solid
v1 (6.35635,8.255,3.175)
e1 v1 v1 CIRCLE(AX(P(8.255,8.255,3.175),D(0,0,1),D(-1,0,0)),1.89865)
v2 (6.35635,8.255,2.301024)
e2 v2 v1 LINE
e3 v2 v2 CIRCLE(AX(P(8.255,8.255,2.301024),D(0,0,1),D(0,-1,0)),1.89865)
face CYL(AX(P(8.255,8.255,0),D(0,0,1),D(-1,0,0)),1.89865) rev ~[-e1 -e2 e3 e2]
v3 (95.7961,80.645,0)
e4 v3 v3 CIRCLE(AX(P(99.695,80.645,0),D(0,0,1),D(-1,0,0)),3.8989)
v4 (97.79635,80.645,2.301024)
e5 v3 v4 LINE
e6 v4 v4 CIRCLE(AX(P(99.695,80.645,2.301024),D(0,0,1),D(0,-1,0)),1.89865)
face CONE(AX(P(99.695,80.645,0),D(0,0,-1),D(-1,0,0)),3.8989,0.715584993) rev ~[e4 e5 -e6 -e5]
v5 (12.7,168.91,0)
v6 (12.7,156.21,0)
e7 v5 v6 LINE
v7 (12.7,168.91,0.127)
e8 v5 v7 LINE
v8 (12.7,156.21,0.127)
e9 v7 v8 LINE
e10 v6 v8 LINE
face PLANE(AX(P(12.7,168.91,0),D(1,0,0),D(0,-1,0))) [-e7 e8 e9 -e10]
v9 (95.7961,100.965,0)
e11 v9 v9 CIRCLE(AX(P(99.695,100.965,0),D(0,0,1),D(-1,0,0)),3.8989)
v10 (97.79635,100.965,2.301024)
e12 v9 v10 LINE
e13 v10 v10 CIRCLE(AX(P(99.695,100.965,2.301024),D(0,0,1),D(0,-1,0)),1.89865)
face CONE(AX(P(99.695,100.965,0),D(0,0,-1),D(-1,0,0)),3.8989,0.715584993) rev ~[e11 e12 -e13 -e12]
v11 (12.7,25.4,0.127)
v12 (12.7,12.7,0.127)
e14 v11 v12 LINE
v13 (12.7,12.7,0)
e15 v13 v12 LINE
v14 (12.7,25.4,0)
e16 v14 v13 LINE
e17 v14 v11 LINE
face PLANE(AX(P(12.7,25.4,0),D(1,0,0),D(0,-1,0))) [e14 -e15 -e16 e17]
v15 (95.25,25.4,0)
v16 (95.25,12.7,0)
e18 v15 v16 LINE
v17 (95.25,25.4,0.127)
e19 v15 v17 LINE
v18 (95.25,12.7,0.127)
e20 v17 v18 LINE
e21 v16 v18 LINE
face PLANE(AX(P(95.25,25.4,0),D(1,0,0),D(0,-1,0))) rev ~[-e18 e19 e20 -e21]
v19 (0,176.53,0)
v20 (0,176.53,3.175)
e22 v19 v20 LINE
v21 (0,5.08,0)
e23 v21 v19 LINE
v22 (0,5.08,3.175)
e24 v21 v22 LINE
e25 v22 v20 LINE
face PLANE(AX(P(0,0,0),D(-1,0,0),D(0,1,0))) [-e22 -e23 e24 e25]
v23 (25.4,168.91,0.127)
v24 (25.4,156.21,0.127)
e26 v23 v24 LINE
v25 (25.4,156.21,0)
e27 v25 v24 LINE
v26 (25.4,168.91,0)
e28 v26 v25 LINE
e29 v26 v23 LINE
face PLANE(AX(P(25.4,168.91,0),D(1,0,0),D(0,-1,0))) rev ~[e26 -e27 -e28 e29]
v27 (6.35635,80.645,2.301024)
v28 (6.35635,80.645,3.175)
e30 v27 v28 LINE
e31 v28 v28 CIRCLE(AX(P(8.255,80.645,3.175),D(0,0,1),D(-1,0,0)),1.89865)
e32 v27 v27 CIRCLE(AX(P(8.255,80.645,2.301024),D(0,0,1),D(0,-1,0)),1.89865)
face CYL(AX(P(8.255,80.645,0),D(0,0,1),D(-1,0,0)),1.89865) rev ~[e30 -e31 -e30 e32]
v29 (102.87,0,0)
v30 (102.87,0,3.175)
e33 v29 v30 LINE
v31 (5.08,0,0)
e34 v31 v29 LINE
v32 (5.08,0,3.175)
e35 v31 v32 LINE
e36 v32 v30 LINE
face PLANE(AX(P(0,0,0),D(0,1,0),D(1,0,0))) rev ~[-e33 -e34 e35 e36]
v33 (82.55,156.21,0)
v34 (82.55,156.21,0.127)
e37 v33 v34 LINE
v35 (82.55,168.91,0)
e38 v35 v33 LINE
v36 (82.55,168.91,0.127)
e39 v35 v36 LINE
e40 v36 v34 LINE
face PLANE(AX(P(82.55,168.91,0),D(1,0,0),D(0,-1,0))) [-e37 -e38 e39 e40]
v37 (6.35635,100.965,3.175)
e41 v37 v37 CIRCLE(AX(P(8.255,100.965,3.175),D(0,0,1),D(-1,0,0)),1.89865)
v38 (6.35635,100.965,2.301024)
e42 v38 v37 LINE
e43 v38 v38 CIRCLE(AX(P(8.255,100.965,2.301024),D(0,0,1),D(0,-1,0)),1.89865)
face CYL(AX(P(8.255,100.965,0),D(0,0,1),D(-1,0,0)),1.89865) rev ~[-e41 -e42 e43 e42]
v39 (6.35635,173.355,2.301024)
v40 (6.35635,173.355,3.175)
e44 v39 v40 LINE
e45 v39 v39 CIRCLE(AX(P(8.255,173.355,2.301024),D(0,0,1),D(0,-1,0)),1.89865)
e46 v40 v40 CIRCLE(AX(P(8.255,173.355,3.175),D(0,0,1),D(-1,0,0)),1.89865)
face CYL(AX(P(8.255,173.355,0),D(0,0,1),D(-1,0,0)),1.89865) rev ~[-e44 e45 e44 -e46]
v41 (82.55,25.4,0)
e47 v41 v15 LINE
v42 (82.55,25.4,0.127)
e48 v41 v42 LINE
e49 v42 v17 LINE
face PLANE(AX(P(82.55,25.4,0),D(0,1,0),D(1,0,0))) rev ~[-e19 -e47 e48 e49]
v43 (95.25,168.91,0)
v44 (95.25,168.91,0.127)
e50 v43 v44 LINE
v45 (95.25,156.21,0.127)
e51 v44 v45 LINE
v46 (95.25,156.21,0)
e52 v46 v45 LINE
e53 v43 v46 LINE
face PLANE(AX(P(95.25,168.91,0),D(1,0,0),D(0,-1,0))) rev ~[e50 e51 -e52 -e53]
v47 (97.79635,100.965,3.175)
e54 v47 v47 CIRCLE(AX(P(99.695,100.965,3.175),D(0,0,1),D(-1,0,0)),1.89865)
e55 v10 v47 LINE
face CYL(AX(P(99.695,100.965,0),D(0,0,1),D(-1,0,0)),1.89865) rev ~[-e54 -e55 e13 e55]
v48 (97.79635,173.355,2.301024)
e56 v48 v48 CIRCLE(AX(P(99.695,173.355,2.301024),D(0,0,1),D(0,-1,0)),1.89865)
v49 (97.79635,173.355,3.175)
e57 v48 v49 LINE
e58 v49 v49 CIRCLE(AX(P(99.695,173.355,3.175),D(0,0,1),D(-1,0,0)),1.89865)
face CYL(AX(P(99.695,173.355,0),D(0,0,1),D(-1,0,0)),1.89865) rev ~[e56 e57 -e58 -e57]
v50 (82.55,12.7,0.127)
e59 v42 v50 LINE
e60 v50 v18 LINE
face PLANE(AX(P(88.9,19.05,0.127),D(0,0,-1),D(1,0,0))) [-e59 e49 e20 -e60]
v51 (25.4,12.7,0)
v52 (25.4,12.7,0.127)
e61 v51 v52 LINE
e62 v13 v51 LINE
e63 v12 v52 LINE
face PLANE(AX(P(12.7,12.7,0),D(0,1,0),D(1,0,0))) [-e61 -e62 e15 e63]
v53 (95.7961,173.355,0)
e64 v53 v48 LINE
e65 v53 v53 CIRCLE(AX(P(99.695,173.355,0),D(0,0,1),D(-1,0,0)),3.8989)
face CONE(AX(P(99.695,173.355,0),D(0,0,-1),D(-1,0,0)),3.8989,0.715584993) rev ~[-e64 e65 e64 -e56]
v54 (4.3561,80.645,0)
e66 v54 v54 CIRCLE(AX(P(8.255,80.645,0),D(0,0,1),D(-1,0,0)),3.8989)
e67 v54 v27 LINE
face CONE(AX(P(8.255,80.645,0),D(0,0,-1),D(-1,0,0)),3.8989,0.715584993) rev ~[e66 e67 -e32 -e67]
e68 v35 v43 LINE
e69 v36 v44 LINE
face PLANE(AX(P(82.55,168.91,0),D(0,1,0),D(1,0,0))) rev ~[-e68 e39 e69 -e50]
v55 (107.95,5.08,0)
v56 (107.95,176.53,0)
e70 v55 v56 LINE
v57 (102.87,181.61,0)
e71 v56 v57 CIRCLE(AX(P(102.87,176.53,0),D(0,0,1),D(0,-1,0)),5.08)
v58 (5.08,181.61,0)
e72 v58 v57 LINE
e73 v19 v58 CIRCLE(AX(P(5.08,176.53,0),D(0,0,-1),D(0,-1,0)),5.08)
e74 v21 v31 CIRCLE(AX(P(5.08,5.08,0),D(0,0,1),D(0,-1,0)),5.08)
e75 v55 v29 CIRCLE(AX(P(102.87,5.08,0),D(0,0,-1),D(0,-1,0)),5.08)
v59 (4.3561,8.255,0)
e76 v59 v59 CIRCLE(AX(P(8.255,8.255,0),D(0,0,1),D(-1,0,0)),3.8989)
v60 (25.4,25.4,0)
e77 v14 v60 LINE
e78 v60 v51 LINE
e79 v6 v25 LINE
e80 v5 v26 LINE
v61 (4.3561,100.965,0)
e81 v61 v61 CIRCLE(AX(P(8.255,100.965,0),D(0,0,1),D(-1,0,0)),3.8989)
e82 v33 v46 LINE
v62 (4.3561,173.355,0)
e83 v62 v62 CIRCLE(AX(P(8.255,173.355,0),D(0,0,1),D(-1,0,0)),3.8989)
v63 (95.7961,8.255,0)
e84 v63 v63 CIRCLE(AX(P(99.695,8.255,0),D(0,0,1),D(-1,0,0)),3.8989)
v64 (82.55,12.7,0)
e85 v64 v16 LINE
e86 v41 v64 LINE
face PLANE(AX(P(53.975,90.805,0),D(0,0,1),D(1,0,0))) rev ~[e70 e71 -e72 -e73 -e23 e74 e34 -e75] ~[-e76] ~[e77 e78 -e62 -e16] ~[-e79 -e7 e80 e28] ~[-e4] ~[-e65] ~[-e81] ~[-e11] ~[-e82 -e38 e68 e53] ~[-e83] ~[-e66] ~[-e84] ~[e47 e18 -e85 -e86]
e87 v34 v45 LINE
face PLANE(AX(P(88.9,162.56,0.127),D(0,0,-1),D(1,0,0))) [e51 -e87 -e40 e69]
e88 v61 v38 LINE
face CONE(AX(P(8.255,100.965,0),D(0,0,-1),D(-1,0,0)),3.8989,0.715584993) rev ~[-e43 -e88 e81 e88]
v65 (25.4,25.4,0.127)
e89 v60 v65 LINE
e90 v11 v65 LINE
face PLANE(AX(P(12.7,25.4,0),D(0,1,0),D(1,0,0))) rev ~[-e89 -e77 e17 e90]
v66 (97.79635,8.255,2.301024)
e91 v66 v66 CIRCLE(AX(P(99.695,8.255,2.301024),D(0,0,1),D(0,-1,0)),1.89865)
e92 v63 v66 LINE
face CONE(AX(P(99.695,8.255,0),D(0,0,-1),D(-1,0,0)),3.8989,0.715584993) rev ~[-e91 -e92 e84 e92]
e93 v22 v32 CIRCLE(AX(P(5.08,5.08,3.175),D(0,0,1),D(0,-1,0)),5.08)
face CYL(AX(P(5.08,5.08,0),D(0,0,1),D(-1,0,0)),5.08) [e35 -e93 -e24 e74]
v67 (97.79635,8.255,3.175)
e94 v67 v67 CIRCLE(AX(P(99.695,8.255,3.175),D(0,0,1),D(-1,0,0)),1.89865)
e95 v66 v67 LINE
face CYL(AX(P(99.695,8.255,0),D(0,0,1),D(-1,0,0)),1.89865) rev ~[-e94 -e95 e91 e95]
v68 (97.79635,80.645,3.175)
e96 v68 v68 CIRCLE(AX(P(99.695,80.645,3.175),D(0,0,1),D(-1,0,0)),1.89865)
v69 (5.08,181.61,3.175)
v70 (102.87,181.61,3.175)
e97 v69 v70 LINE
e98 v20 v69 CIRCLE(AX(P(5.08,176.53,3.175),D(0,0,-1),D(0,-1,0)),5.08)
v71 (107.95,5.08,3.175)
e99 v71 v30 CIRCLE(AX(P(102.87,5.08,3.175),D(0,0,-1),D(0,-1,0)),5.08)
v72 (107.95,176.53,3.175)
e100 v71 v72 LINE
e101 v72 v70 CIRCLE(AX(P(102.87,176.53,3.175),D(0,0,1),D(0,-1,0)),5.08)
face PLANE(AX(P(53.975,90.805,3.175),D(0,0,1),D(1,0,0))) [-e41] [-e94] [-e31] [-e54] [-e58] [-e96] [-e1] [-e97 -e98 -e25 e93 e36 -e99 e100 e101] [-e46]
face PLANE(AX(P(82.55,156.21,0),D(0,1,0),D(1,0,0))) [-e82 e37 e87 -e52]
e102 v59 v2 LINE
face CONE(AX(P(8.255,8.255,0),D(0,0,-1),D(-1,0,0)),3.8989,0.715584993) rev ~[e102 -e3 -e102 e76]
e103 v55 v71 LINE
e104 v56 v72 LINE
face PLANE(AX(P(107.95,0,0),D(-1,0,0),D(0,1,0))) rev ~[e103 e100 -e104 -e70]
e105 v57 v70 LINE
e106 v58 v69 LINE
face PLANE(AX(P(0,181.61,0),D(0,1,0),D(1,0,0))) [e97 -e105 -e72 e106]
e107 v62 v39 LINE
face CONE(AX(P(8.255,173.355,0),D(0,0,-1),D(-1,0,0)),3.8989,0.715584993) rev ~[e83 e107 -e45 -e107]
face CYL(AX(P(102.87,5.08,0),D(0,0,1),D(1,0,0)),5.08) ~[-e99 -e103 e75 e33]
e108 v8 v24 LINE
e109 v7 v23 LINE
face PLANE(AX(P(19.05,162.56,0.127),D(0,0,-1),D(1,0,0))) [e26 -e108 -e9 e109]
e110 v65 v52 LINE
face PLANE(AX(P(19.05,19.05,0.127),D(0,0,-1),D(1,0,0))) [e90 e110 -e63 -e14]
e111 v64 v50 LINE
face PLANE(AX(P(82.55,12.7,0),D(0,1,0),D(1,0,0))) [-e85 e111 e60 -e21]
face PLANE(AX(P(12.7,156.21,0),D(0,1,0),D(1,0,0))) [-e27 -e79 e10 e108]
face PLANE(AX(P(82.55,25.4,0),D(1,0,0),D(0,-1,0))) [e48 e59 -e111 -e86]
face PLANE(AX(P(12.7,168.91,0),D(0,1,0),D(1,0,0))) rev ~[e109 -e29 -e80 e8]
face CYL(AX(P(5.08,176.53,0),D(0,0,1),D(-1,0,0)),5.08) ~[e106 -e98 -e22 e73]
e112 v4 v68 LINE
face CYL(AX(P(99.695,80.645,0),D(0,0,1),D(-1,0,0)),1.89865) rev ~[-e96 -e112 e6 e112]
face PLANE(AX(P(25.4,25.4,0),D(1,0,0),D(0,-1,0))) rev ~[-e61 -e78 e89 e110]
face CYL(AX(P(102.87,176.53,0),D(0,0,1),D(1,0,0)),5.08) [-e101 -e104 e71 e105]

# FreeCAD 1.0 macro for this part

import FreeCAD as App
import Part
import Sketcher
Q = App.Units.Quantity


def edges_at(feature, points):
    """Names of the edges that pass closest to the given points."""
    edges = feature.Shape.Edges
    near = lambda p: min(range(len(edges)), key=lambda i: edges[i].distToShape(Part.Vertex(*p))[0])
    return sorted({f"Edge{near(p) + 1}" for p in points})

doc = App.newDocument("Part")
params = doc.addObject("Spreadsheet::Sheet", "Params")
for row, (alias, value) in enumerate([
    ("sketch1_width", "4.25 in"),
    ("sketch1_height", "7.15 in"),
    ("pad1_length", "0.125 in"),
    ("hole_diameter", "0.1495 in"),
    ("hole_csink_diameter", "0.307 in"),
    ("fillet_radius", "0.2 in"),
    ("sketch3_width", "0.5 in"),
    ("pocket1_length", "0.005 in"),
], start=1):
    params.set(f"A{row}", alias)
    params.set(f"B{row}", "=" + value)
    params.setAlias(f"B{row}", alias)

body = doc.addObject("PartDesign::Body", "Body")

sketch1 = doc.addObject("Sketcher::SketchObject", "Sketch")
body.addObject(sketch1)
sketch1.AttachmentSupport = (doc.XY_Plane, [""])
sketch1.MapMode = "FlatFace"
sketch1.addGeometry([
    Part.LineSegment(App.Vector(0, 182, 0), App.Vector(0, 0, 0)),
    Part.LineSegment(App.Vector(0, 0, 0), App.Vector(108, 0, 0)),
    Part.LineSegment(App.Vector(108, 0, 0), App.Vector(108, 182, 0)),
    Part.LineSegment(App.Vector(108, 182, 0), App.Vector(0, 182, 0)),
], False)
sketch1.addConstraint([
    Sketcher.Constraint("Coincident", 0, 2, 1, 1),
    Sketcher.Constraint("Coincident", 1, 2, 2, 1),
    Sketcher.Constraint("Coincident", 2, 2, 3, 1),
    Sketcher.Constraint("Coincident", 3, 2, 0, 1),
    Sketcher.Constraint("Vertical", 0),
    Sketcher.Constraint("Horizontal", 1),
    Sketcher.Constraint("Vertical", 2),
    Sketcher.Constraint("Horizontal", 3),
    Sketcher.Constraint("Coincident", 0, 2, -1, 1),
    Sketcher.Constraint("DistanceX", 1, 1, 1, 2, Q("4.25 in")),
    Sketcher.Constraint("DistanceY", 0, 2, 0, 1, Q("7.15 in")),
])
sketch1.setExpression("Constraints[9]", "Params.sketch1_width")
sketch1.setExpression("Constraints[10]", "Params.sketch1_height")
pad1 = doc.addObject("PartDesign::Pad", "Pad")
body.addObject(pad1)
pad1.Profile = sketch1
pad1.setExpression("Length", "Params.pad1_length")

sketch2 = doc.addObject("Sketcher::SketchObject", "Sketch001")
body.addObject(sketch2)
sketch2.AttachmentSupport = (doc.XY_Plane, [""])
sketch2.MapMode = "FlatFace"
sketch2.addGeometry([
    Part.Circle(App.Vector(8.3, 8.3, 0), App.Vector(0, 0, 1), 1.9),
    Part.Circle(App.Vector(99.7, 8.3, 0), App.Vector(0, 0, 1), 1.9),
    Part.Circle(App.Vector(99.7, 80.6, 0), App.Vector(0, 0, 1), 1.9),
    Part.Circle(App.Vector(8.3, 80.6, 0), App.Vector(0, 0, 1), 1.9),
    Part.Circle(App.Vector(8.3, 101, 0), App.Vector(0, 0, 1), 1.9),
    Part.Circle(App.Vector(8.3, 173.4, 0), App.Vector(0, 0, 1), 1.9),
    Part.Circle(App.Vector(99.7, 173.4, 0), App.Vector(0, 0, 1), 1.9),
    Part.Circle(App.Vector(99.7, 101, 0), App.Vector(0, 0, 1), 1.9),
], False)
sketch2.addConstraint([
    Sketcher.Constraint("Equal", 0, 1),
    Sketcher.Constraint("Equal", 1, 2),
    Sketcher.Constraint("Equal", 2, 3),
    Sketcher.Constraint("Equal", 3, 4),
    Sketcher.Constraint("Equal", 4, 5),
    Sketcher.Constraint("Equal", 5, 6),
    Sketcher.Constraint("Equal", 6, 7),
    Sketcher.Constraint("Horizontal", 0, 3, 1, 3),
    Sketcher.Constraint("Horizontal", 2, 3, 3, 3),
    Sketcher.Constraint("Horizontal", 5, 3, 6, 3),
    Sketcher.Constraint("Horizontal", 4, 3, 7, 3),
    Sketcher.Constraint("Vertical", 1, 3, 2, 3),
    Sketcher.Constraint("Vertical", 0, 3, 3, 3),
    Sketcher.Constraint("Vertical", 3, 3, 4, 3),
    Sketcher.Constraint("Vertical", 4, 3, 5, 3),
    Sketcher.Constraint("Vertical", 2, 3, 6, 3),
    Sketcher.Constraint("Vertical", 6, 3, 7, 3),
    Sketcher.Constraint("Diameter", 0, Q("0.1495 in")),
    Sketcher.Constraint("DistanceX", 0, 3, 1, 3, Q("3.6 in")),
    Sketcher.Constraint("DistanceY", 3, 3, 4, 3, Q("0.8 in")),
    Sketcher.Constraint("DistanceY", 0, 3, 5, 3, Q("6.5 in")),
    Sketcher.Constraint("DistanceY", 1, 3, 2, 3, Q("2.85 in")),
    Sketcher.Constraint("DistanceX", -1, 1, 0, 3, Q("0.325 in")),
    Sketcher.Constraint("DistanceY", -1, 1, 0, 3, Q("0.325 in")),
])
doc.recompute()
hole = doc.addObject("PartDesign::Hole", "Hole")
body.addObject(hole)
hole.Profile = sketch2
hole.ThreadType = "None"
hole.setExpression("Diameter", "Params.hole_diameter")
hole.DepthType = "ThroughAll"
hole.HoleCutType = "Countersink"
hole.setExpression("HoleCutDiameter", "Params.hole_csink_diameter")
hole.HoleCutCountersinkAngle = 82
hole.Reversed = True
doc.recompute()

fillet = doc.addObject("PartDesign::Fillet", "Fillet")
body.addObject(fillet)
fillet.Base = (hole, edges_at(hole, [
    (0, 0, 1.587),
    (107.95, 0, 1.587),
    (107.95, 181.61, 1.587),
    (0, 181.61, 1.587),
]))
fillet.setExpression("Radius", "Params.fillet_radius")

sketch3 = doc.addObject("Sketcher::SketchObject", "Sketch002")
body.addObject(sketch3)
sketch3.AttachmentSupport = (doc.XY_Plane, [""])
sketch3.MapMode = "FlatFace"
sketch3.addGeometry([
    Part.LineSegment(App.Vector(13, 13, 0), App.Vector(13, 25, 0)),
    Part.LineSegment(App.Vector(13, 25, 0), App.Vector(25, 25, 0)),
    Part.LineSegment(App.Vector(25, 25, 0), App.Vector(25, 13, 0)),
    Part.LineSegment(App.Vector(25, 13, 0), App.Vector(13, 13, 0)),
    Part.LineSegment(App.Vector(83, 13, 0), App.Vector(83, 25, 0)),
    Part.LineSegment(App.Vector(83, 25, 0), App.Vector(95, 25, 0)),
    Part.LineSegment(App.Vector(95, 25, 0), App.Vector(95, 13, 0)),
    Part.LineSegment(App.Vector(95, 13, 0), App.Vector(83, 13, 0)),
    Part.LineSegment(App.Vector(13, 156, 0), App.Vector(13, 169, 0)),
    Part.LineSegment(App.Vector(13, 169, 0), App.Vector(25, 169, 0)),
    Part.LineSegment(App.Vector(25, 169, 0), App.Vector(25, 156, 0)),
    Part.LineSegment(App.Vector(25, 156, 0), App.Vector(13, 156, 0)),
    Part.LineSegment(App.Vector(83, 156, 0), App.Vector(83, 169, 0)),
    Part.LineSegment(App.Vector(83, 169, 0), App.Vector(95, 169, 0)),
    Part.LineSegment(App.Vector(95, 169, 0), App.Vector(95, 156, 0)),
    Part.LineSegment(App.Vector(95, 156, 0), App.Vector(83, 156, 0)),
], False)
sketch3.addConstraint([
    Sketcher.Constraint("Coincident", 0, 2, 1, 1),
    Sketcher.Constraint("Coincident", 1, 2, 2, 1),
    Sketcher.Constraint("Coincident", 2, 2, 3, 1),
    Sketcher.Constraint("Coincident", 3, 2, 0, 1),
    Sketcher.Constraint("Coincident", 4, 2, 5, 1),
    Sketcher.Constraint("Coincident", 5, 2, 6, 1),
    Sketcher.Constraint("Coincident", 6, 2, 7, 1),
    Sketcher.Constraint("Coincident", 7, 2, 4, 1),
    Sketcher.Constraint("Coincident", 8, 2, 9, 1),
    Sketcher.Constraint("Coincident", 9, 2, 10, 1),
    Sketcher.Constraint("Coincident", 10, 2, 11, 1),
    Sketcher.Constraint("Coincident", 11, 2, 8, 1),
    Sketcher.Constraint("Coincident", 12, 2, 13, 1),
    Sketcher.Constraint("Coincident", 13, 2, 14, 1),
    Sketcher.Constraint("Coincident", 14, 2, 15, 1),
    Sketcher.Constraint("Coincident", 15, 2, 12, 1),
    Sketcher.Constraint("Vertical", 0),
    Sketcher.Constraint("Horizontal", 1),
    Sketcher.Constraint("Vertical", 2),
    Sketcher.Constraint("Horizontal", 3),
    Sketcher.Constraint("Vertical", 4),
    Sketcher.Constraint("Horizontal", 5),
    Sketcher.Constraint("Vertical", 6),
    Sketcher.Constraint("Horizontal", 7),
    Sketcher.Constraint("Vertical", 8),
    Sketcher.Constraint("Horizontal", 9),
    Sketcher.Constraint("Vertical", 10),
    Sketcher.Constraint("Horizontal", 11),
    Sketcher.Constraint("Vertical", 12),
    Sketcher.Constraint("Horizontal", 13),
    Sketcher.Constraint("Vertical", 14),
    Sketcher.Constraint("Horizontal", 15),
    Sketcher.Constraint("Horizontal", 1, 2, 4, 2),
    Sketcher.Constraint("Horizontal", 3, 2, 6, 2),
    Sketcher.Constraint("Horizontal", 9, 2, 12, 2),
    Sketcher.Constraint("Horizontal", 11, 2, 14, 2),
    Sketcher.Constraint("Vertical", 3, 2, 8, 2),
    Sketcher.Constraint("Vertical", 2, 2, 9, 2),
    Sketcher.Constraint("Vertical", 7, 2, 12, 2),
    Sketcher.Constraint("Vertical", 6, 2, 13, 2),
    Sketcher.Constraint("Equal", 3, 5),
    Sketcher.Constraint("Equal", 15, 0),
    Sketcher.Constraint("Equal", 6, 8),
    Sketcher.Constraint("DistanceX", 1, 1, 1, 2, Q("0.5 in")),
    Sketcher.Constraint("DistanceY", -1, 1, 0, 2, Q("1 in")),
    Sketcher.Constraint("DistanceX", -1, 1, 1, 2, Q("1 in")),
    Sketcher.Constraint("DistanceX", -1, 1, 4, 2, Q("3.25 in")),
    Sketcher.Constraint("DistanceY", -1, 1, 8, 2, Q("6.65 in")),
])
sketch3.setExpression("Constraints[43]", "Params.sketch3_width")
pocket1 = doc.addObject("PartDesign::Pocket", "Pocket")
body.addObject(pocket1)
pocket1.Profile = sketch3
pocket1.setExpression("Length", "Params.pocket1_length")
pocket1.Reversed = True

doc.recompute()
